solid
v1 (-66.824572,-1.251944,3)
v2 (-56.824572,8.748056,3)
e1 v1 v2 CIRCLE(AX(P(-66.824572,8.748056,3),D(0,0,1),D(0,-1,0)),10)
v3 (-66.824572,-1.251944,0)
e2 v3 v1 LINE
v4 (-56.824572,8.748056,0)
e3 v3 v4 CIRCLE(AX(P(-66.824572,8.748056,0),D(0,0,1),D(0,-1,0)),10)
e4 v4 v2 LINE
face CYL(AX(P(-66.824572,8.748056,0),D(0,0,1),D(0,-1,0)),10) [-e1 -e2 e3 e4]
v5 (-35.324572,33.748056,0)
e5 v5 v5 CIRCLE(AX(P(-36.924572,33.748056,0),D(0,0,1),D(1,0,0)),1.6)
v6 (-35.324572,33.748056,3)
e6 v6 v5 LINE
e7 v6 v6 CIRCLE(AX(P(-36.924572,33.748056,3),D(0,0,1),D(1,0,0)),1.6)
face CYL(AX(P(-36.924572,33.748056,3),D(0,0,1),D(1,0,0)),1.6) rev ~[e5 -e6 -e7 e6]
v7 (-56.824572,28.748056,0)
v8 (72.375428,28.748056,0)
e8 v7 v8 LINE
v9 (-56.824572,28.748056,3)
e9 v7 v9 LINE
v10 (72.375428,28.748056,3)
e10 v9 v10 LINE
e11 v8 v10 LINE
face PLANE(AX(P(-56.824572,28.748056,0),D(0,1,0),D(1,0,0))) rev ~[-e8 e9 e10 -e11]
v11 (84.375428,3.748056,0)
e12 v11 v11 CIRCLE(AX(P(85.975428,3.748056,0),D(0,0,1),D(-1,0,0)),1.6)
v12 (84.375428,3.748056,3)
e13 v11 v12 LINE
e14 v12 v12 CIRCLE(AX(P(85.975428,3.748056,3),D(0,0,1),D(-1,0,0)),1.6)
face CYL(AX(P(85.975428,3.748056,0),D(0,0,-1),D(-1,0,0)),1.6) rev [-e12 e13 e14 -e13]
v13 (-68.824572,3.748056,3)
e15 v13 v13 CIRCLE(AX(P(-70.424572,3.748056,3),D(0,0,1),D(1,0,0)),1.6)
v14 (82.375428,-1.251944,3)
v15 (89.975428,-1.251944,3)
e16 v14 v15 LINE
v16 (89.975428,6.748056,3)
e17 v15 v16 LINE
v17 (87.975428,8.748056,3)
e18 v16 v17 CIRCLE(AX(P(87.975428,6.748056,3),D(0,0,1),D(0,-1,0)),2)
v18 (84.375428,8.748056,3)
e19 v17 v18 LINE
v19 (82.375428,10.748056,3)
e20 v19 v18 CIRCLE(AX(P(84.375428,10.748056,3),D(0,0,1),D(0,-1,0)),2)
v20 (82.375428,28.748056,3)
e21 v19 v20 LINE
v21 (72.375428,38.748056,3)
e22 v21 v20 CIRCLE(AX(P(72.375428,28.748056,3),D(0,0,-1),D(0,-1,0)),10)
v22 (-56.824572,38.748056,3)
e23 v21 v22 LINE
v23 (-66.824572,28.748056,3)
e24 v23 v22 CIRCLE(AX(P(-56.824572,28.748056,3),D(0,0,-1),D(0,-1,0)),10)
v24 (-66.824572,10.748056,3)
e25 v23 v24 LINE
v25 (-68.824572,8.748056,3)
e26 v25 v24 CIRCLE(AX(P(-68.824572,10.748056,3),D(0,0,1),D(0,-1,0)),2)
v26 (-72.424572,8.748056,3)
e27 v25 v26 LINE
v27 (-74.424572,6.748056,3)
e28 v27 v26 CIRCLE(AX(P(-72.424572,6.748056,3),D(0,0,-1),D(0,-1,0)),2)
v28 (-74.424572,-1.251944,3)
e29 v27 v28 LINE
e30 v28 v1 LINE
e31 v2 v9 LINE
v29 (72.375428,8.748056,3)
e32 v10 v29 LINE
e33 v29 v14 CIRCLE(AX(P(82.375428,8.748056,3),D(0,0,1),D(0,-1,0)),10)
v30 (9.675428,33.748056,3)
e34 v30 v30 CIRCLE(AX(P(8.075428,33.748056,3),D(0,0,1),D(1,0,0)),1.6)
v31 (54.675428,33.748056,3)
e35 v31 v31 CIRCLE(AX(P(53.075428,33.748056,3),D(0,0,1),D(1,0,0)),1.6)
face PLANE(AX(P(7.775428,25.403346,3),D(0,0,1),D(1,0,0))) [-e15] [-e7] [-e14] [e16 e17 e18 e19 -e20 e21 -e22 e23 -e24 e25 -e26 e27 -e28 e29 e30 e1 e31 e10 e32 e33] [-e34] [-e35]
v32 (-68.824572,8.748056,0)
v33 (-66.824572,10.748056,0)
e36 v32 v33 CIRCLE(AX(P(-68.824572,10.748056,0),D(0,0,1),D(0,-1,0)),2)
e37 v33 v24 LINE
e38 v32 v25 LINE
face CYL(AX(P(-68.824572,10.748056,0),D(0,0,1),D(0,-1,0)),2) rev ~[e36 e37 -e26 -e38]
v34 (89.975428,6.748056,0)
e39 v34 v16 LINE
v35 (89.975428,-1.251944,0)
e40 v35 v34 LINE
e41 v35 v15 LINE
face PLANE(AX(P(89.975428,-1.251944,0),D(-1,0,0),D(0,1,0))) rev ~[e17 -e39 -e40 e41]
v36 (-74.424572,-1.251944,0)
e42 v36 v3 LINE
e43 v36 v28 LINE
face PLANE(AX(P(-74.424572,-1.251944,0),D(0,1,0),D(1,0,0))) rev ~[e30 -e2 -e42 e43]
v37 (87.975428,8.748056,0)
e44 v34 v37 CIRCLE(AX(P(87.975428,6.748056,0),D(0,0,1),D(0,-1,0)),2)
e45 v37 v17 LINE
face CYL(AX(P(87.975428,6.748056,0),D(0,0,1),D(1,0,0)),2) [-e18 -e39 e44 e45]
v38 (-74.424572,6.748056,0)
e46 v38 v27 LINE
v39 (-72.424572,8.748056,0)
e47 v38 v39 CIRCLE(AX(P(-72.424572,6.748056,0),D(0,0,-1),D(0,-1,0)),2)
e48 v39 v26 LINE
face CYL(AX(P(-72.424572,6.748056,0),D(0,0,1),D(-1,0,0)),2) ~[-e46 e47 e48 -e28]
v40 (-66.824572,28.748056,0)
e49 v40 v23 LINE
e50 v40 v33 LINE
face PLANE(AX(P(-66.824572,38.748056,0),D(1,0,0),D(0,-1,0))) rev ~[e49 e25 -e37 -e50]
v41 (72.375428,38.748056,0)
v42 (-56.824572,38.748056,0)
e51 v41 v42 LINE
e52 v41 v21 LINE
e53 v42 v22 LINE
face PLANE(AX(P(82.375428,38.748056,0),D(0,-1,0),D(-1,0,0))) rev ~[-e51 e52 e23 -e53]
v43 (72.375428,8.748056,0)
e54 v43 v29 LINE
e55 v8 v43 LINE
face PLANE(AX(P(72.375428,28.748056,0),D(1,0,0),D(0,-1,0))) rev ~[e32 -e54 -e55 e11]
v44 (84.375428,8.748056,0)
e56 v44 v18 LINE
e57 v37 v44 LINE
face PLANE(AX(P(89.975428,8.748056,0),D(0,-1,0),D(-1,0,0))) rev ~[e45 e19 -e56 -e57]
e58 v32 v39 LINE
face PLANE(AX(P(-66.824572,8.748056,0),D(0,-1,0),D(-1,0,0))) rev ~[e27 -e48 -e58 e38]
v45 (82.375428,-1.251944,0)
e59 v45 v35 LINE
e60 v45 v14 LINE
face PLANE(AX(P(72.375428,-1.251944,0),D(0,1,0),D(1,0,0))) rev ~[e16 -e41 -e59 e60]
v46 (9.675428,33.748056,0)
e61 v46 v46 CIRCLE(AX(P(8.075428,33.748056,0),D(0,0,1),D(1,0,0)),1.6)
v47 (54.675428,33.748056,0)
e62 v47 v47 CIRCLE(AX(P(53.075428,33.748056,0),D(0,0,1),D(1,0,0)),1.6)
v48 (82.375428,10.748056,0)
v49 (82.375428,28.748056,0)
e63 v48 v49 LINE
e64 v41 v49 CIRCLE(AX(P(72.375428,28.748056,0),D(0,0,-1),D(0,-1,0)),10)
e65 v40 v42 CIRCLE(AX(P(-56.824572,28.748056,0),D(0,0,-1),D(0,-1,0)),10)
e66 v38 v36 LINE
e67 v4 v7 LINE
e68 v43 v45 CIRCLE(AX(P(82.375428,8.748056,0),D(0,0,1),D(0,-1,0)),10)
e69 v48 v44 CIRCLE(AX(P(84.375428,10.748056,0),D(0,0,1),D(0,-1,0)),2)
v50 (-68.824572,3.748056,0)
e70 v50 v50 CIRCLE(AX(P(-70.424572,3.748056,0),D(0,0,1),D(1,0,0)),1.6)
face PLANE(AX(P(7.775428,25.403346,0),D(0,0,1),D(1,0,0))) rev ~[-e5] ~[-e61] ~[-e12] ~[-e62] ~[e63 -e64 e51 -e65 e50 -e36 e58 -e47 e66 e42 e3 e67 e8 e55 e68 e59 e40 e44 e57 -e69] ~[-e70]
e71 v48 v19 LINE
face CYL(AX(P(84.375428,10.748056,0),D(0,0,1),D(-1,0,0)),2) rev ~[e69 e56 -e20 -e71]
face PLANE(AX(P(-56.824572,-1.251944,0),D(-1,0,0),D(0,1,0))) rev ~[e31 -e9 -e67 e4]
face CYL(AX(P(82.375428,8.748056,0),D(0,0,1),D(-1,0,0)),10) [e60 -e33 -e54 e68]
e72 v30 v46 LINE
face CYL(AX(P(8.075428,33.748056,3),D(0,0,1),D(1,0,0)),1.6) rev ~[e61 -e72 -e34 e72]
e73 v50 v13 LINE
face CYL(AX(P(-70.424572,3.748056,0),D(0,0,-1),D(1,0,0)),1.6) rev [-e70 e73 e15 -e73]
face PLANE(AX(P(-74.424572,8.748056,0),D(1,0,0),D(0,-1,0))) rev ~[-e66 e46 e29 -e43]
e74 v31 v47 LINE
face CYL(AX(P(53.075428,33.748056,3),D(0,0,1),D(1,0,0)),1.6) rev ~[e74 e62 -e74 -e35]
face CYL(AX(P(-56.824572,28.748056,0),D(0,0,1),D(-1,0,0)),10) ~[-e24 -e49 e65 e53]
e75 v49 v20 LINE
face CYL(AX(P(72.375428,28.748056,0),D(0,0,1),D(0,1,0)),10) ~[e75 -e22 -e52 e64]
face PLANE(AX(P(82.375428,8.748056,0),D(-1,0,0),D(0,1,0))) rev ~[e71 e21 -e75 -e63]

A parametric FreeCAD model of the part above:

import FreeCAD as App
import Part
import Sketcher

V = App.Vector
Q = App.Units.Quantity


def edges_at(feature, points):
    """Names of the edges that pass closest to the given points."""
    edges = feature.Shape.Edges
    near = lambda p: min(range(len(edges)), key=lambda i: edges[i].distToShape(Part.Vertex(*p))[0])
    return sorted({f"Edge{near(p) + 1}" for p in points})


def add_polygon(sketch, points):
    """Adds a closed chain of lines whose ends are joined by coincident constraints."""
    first, n = sketch.GeometryCount, len(points)
    for a, b in zip(points, points[1:] + points[:1]):
        sketch.addGeometry(Part.LineSegment(App.Vector(*a, 0), App.Vector(*b, 0)), False)
    for i in range(n):
        sketch.addConstraint(Sketcher.Constraint("Coincident", first + i, 2, first + (i + 1) % n, 1))

doc = App.newDocument("Part")
body = doc.addObject("PartDesign::Body", "Body")

# Sketch on XY plane
sketch1 = body.newObject("Sketcher::SketchObject", "Sketch")
sketch1.AttachmentSupport = (doc.getObject("XY_Plane"), [""])
sketch1.MapMode = "FlatFace"
add_polygon(sketch1, [(-74.4, -1.3), (-56.8, -1.3), (-56.8, 28.7), (72.4, 28.7), (72.4, -1.3), (90, -1.3), (90, 8.7), (82.4, 8.7), (82.4, 38.7), (-66.8, 38.7), (-66.8, 8.7), (-74.4, 8.7)])  # lines 0-11
sketch1.addGeometry(Part.Circle(V(-70.4, 3.7, 0), V(0, 0, 1), 1.6), False)  # 12
sketch1.addGeometry(Part.Circle(V(86, 3.7, 0), V(0, 0, 1), 1.6), False)  # 13
sketch1.addConstraint(Sketcher.Constraint("Horizontal", 0))
sketch1.addConstraint(Sketcher.Constraint("Vertical", 1))
sketch1.addConstraint(Sketcher.Constraint("Horizontal", 2))
sketch1.addConstraint(Sketcher.Constraint("Vertical", 3))
sketch1.addConstraint(Sketcher.Constraint("Horizontal", 4))
sketch1.addConstraint(Sketcher.Constraint("Vertical", 5))
sketch1.addConstraint(Sketcher.Constraint("Horizontal", 6))
sketch1.addConstraint(Sketcher.Constraint("Vertical", 7))
sketch1.addConstraint(Sketcher.Constraint("Horizontal", 8))
sketch1.addConstraint(Sketcher.Constraint("Vertical", 9))
sketch1.addConstraint(Sketcher.Constraint("Horizontal", 10))
sketch1.addConstraint(Sketcher.Constraint("Vertical", 11))
sketch1.addConstraint(Sketcher.Constraint("Equal", 12, 13))
sketch1.addConstraint(Sketcher.Constraint("Horizontal", 12, 3, 13, 3))
sketch1.addConstraint(Sketcher.Constraint("Horizontal", 0, 2, 3, 2))
sketch1.addConstraint(Sketcher.Constraint("Horizontal", 6, 2, 9, 2))
sketch1.addConstraint(Sketcher.Constraint("Equal", 0, 4))
sketch1.addConstraint(Sketcher.Constraint("Equal", 6, 10))
sketch1.addConstraint(Sketcher.Constraint("Equal", 3, 7))
sketch1.addConstraint(Sketcher.Constraint("Diameter", 12, Q("3.2 mm")))
sketch1.addConstraint(Sketcher.Constraint("DistanceY", 1, 1, 1, 2, Q("30 mm")))
sketch1.addConstraint(Sketcher.Constraint("DistanceY", 5, 1, 5, 2, Q("10 mm")))
sketch1.addConstraint(Sketcher.Constraint("DistanceX", 0, 1, 0, 2, Q("17.6 mm")))
sketch1.addConstraint(Sketcher.Constraint("DistanceX", 2, 1, 2, 2, Q("129.2 mm")))
sketch1.addConstraint(Sketcher.Constraint("DistanceX", 6, 2, 6, 1, Q("7.6 mm")))
sketch1.addConstraint(Sketcher.Constraint("DistanceY", 0, 2, 12, 3, Q("5 mm")))
sketch1.addConstraint(Sketcher.Constraint("DistanceX", 13, 3, 4, 2, Q("4 mm")))
sketch1.addConstraint(Sketcher.Constraint("DistanceX", 10, 2, 12, 3, Q("4 mm")))
sketch1.addConstraint(Sketcher.Constraint("DistanceX", 12, 3, -1, 1, Q("70.424572 mm")))
sketch1.addConstraint(Sketcher.Constraint("DistanceY", -1, 1, 12, 3, Q("3.748056 mm")))
pad1 = body.newObject("PartDesign::Pad", "Pad")
pad1.Profile = sketch1
pad1.Length = 3

# Sketch on XY plane
sketch2 = body.newObject("Sketcher::SketchObject", "Sketch001")
sketch2.AttachmentSupport = (doc.getObject("XY_Plane"), [""])
sketch2.MapMode = "FlatFace"
sketch2.AttachmentOffset = App.Placement(V(0, 0, 3), App.Rotation())
sketch2.addGeometry(Part.Circle(V(-36.9, 33.7, 0), V(0, 0, 1), 1.6), False)
sketch2.addConstraint(Sketcher.Constraint("Diameter", 0, Q("3.2 mm")))
sketch2.addConstraint(Sketcher.Constraint("DistanceX", 0, 3, -1, 1, Q("36.924572 mm")))
sketch2.addConstraint(Sketcher.Constraint("DistanceY", -1, 1, 0, 3, Q("33.748056 mm")))
pocket1 = body.newObject("PartDesign::Pocket", "Pocket")
pocket1.Profile = sketch2
pocket1.Type = "UpToFirst"

# Sketch on XY plane
sketch3 = body.newObject("Sketcher::SketchObject", "Sketch002")
sketch3.AttachmentSupport = (doc.getObject("XY_Plane"), [""])
sketch3.MapMode = "FlatFace"
sketch3.AttachmentOffset = App.Placement(V(0, 0, 3), App.Rotation())
sketch3.addGeometry(Part.Circle(V(8.1, 33.7, 0), V(0, 0, 1), 1.6), False)
sketch3.addConstraint(Sketcher.Constraint("Diameter", 0, Q("3.2 mm")))
sketch3.addConstraint(Sketcher.Constraint("DistanceX", -1, 1, 0, 3, Q("8.075428 mm")))
sketch3.addConstraint(Sketcher.Constraint("DistanceY", -1, 1, 0, 3, Q("33.748056 mm")))
pocket2 = body.newObject("PartDesign::Pocket", "Pocket001")
pocket2.Profile = sketch3
pocket2.Type = "UpToFirst"

# Sketch on XY plane
sketch4 = body.newObject("Sketcher::SketchObject", "Sketch003")
sketch4.AttachmentSupport = (doc.getObject("XY_Plane"), [""])
sketch4.MapMode = "FlatFace"
sketch4.AttachmentOffset = App.Placement(V(0, 0, 3), App.Rotation())
sketch4.addGeometry(Part.Circle(V(53.1, 33.7, 0), V(0, 0, 1), 1.6), False)
sketch4.addConstraint(Sketcher.Constraint("Diameter", 0, Q("3.2 mm")))
sketch4.addConstraint(Sketcher.Constraint("DistanceX", -1, 1, 0, 3, Q("53.075428 mm")))
sketch4.addConstraint(Sketcher.Constraint("DistanceY", -1, 1, 0, 3, Q("33.748056 mm")))
pocket3 = body.newObject("PartDesign::Pocket", "Pocket002")
pocket3.Profile = sketch4
pocket3.Type = "UpToFirst"
doc.recompute()

fillet = body.newObject("PartDesign::Fillet", "Fillet")
fillet.Base = (pocket3, edges_at(pocket3, [
    (-66.825, 38.748, 1.5),
    (82.375, 38.748, 1.5),
    (72.375, -1.252, 1.5),
    (-56.825, -1.252, 1.5),
]))
fillet.Radius = 10
doc.recompute()

fillet2 = body.newObject("PartDesign::Fillet", "Fillet001")
fillet2.Base = (fillet, edges_at(fillet, [
    (-74.425, 8.748, 1.5),
    (-66.825, 8.748, 1.5),
    (82.375, 8.748, 1.5),
    (89.975, 8.748, 1.5),
]))
fillet2.Radius = 2

doc.recompute()
